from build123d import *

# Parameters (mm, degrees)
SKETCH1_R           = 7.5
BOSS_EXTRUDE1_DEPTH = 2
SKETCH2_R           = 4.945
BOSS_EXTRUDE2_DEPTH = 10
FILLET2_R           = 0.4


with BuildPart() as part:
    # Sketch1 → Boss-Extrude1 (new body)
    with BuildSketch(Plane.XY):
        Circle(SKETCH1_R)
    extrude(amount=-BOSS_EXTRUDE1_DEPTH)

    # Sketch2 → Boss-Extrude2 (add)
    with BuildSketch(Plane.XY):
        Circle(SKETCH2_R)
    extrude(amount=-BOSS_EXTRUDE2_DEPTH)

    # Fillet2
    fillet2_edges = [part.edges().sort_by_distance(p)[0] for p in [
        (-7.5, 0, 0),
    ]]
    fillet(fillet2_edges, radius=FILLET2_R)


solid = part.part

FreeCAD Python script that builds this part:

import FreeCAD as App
import Part
import Sketcher


def edges_at(feature, points):
    """Names of the edges that pass closest to the given points."""
    edges = feature.Shape.Edges
    near = lambda p: min(range(len(edges)), key=lambda i: edges[i].distToShape(Part.Vertex(*p))[0])
    return sorted({f"Edge{near(p) + 1}" for p in points})

doc = App.newDocument("Part")
body = doc.addObject("PartDesign::Body", "Body")

sketch1 = body.newObject("Sketcher::SketchObject", "Sketch")
sketch1.AttachmentSupport = (doc.getObject("XY_Plane"), [""])
sketch1.MapMode = "FlatFace"
sketch1.addGeometry(Part.Circle(App.Vector(0, 0, 0), App.Vector(0, 0, 1), 8), False)
sketch1.addConstraint([
    Sketcher.Constraint("Coincident", 0, 3, -1, 1),
    Sketcher.Constraint("Diameter", 0, 15.0),
])
pad1 = body.newObject("PartDesign::Pad", "Pad")
pad1.Profile = sketch1
pad1.Length = 2
pad1.Reversed = True

sketch2 = body.newObject("Sketcher::SketchObject", "Sketch001")
sketch2.AttachmentSupport = (doc.getObject("XY_Plane"), [""])
sketch2.MapMode = "FlatFace"
sketch2.addGeometry(Part.Circle(App.Vector(0, 0, 0), App.Vector(0, 0, 1), 4.9), False)
sketch2.addConstraint([
    Sketcher.Constraint("Coincident", 0, 3, -1, 1),
    Sketcher.Constraint("Diameter", 0, 9.89),
])
pad2 = body.newObject("PartDesign::Pad", "Pad001")
pad2.Profile = sketch2
pad2.Length = 10
pad2.Reversed = True
doc.recompute()

fillet = body.newObject("PartDesign::Fillet", "Fillet")
fillet.Base = (pad2, edges_at(pad2, [(-7.5, 0, 0)]))
fillet.Radius = 0.4

doc.recompute()
